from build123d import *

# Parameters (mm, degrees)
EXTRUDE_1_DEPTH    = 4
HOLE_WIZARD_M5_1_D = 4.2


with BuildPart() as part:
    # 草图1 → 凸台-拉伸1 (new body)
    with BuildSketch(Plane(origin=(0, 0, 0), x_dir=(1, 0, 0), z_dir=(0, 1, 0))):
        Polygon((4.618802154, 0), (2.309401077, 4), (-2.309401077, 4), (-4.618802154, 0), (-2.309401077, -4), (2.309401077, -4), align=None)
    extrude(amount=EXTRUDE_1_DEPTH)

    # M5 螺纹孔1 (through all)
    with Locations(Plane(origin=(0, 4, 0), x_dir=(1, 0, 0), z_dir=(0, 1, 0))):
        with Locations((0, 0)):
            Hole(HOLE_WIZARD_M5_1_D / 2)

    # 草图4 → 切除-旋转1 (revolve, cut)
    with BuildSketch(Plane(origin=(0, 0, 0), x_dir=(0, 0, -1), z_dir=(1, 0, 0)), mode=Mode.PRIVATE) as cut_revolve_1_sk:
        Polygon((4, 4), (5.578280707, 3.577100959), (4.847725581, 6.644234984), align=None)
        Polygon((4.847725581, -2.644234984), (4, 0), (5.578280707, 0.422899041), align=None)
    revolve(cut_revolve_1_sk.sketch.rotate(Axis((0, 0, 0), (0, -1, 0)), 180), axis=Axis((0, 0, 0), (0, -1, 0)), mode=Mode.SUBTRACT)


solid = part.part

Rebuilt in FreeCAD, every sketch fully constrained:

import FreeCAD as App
import Part
import Sketcher
from FreeCAD import Vector
Q = App.Units.Quantity

doc = App.newDocument("Part")
params = doc.addObject("Spreadsheet::Sheet", "Params")
for row, (alias, value) in enumerate([
    ("pad1_length", "4 mm"),
    ("sketch2_diameter", "4.2 mm"),
    ("hole_diameter", "4.2 mm"),
    ("groove_angle", "360 deg"),
], start=1):
    params.set(f"A{row}", alias)
    params.set(f"B{row}", "=" + value)
    params.setAlias(f"B{row}", alias)

body = doc.addObject("PartDesign::Body", "Body")

sketch1 = body.newObject("Sketcher::SketchObject", "Sketch")
sketch1.AttachmentSupport = (doc.getObject("XZ_Plane"), [""])
sketch1.MapMode = "FlatFace"
sketch1.addGeometry([
    Part.LineSegment(Vector(4.618802, 0, 0), Vector(2.309401, -4, 0)),
    Part.LineSegment(Vector(2.309401, -4, 0), Vector(-2.309401, -4, 0)),
    Part.LineSegment(Vector(-2.309401, -4, 0), Vector(-4.618802, 0, 0)),
    Part.LineSegment(Vector(-4.618802, 0, 0), Vector(-2.309401, 4, 0)),
    Part.LineSegment(Vector(-2.309401, 4, 0), Vector(2.309401, 4, 0)),
    Part.LineSegment(Vector(2.309401, 4, 0), Vector(4.618802, 0, 0)),
], False)
sketch1.addConstraint([
    Sketcher.Constraint("Coincident", 0, 2, 1, 1),
    Sketcher.Constraint("Coincident", 1, 2, 2, 1),
    Sketcher.Constraint("Coincident", 2, 2, 3, 1),
    Sketcher.Constraint("Coincident", 3, 2, 4, 1),
    Sketcher.Constraint("Coincident", 4, 2, 5, 1),
    Sketcher.Constraint("Coincident", 5, 2, 0, 1),
    Sketcher.Constraint("Horizontal", 1),
    Sketcher.Constraint("Horizontal", 4),
    Sketcher.Constraint("Symmetric", 0, 2, 3, 2, -1, 1),
    Sketcher.Constraint("Symmetric", 2, 2, 5, 2, -1, 1),
    Sketcher.Constraint("PointOnObject", 2, 2, -1),
    Sketcher.Constraint("Parallel", 2, 5),
    Sketcher.Constraint("Vertical", 1, 2, 3, 2),
    Sketcher.Constraint("Angle", 0, Q("-120 deg")),
    Sketcher.Constraint("DistanceY", 0, 2, -1, 1, Q("4 mm")),
    Sketcher.Constraint("DistanceX", -1, 1, 0, 2, Q("2.309401 mm")),
])
pad1 = body.newObject("PartDesign::Pad", "Pad")
pad1.Profile = sketch1
pad1.setExpression("Length", "Params.pad1_length")
pad1.Reversed = True

sketch2 = body.newObject("Sketcher::SketchObject", "Sketch001")
sketch2.AttachmentSupport = (doc.getObject("XZ_Plane"), [""])
sketch2.MapMode = "FlatFace"
sketch2.AttachmentOffset = App.Placement(Vector(0, 0, -4), App.Rotation())
sketch2.addGeometry(Part.Circle(Vector(0, 0, 0), Vector(0, 0, 1), 2.1), False)
sketch2.addConstraint([
    Sketcher.Constraint("Coincident", 0, 3, -1, 1),
    Sketcher.Constraint("Diameter", 0, Q("4.2 mm")),
])
sketch2.setExpression("Constraints[1]", "Params.sketch2_diameter")
doc.recompute()
hole = body.newObject("PartDesign::Hole", "Hole")
hole.Profile = sketch2
hole.ThreadType = "None"
hole.setExpression("Diameter", "Params.hole_diameter")
hole.DepthType = "ThroughAll"
hole.Reversed = True

sketch3 = body.newObject("Sketcher::SketchObject", "Sketch002")
sketch3.AttachmentSupport = (doc.getObject("YZ_Plane"), [""])
sketch3.MapMode = "FlatFace"
sketch3.addGeometry([
    Part.LineSegment(Vector(4, -4, 0), Vector(3.577101, -5.578281, 0)),
    Part.LineSegment(Vector(3.577101, -5.578281, 0), Vector(6.644235, -4.847726, 0)),
    Part.LineSegment(Vector(6.644235, -4.847726, 0), Vector(4, -4, 0)),
    Part.LineSegment(Vector(0, -4, 0), Vector(-2.644235, -4.847726, 0)),
    Part.LineSegment(Vector(-2.644235, -4.847726, 0), Vector(0.422899, -5.578281, 0)),
    Part.LineSegment(Vector(0.422899, -5.578281, 0), Vector(0, -4, 0)),
], False)
sketch3.addConstraint([
    Sketcher.Constraint("Coincident", 0, 2, 1, 1),
    Sketcher.Constraint("Coincident", 1, 2, 2, 1),
    Sketcher.Constraint("Coincident", 2, 2, 0, 1),
    Sketcher.Constraint("Coincident", 3, 2, 4, 1),
    Sketcher.Constraint("Coincident", 4, 2, 5, 1),
    Sketcher.Constraint("Coincident", 5, 2, 3, 1),
    Sketcher.Constraint("PointOnObject", 5, 2, -2),
    Sketcher.Constraint("Horizontal", 1, 2, 3, 2),
    Sketcher.Constraint("Horizontal", 0, 2, 4, 2),
    Sketcher.Constraint("Horizontal", 2, 2, 5, 2),
    Sketcher.Constraint("Equal", 2, 3),
    Sketcher.Constraint("Equal", 1, 4),
    Sketcher.Constraint("Angle", 0, Q("-105 deg")),
    Sketcher.Constraint("DistanceX", -1, 1, 2, 2, Q("4 mm")),
    Sketcher.Constraint("DistanceY", 2, 2, -1, 1, Q("4 mm")),
    Sketcher.Constraint("Distance", 2, Q("2.7768 mm")),
    Sketcher.Constraint("DistanceX", -1, 1, 0, 2, Q("3.577101 mm")),
    Sketcher.Constraint("Distance", 1, Q("3.152939 mm")),
])
groove = body.newObject("PartDesign::Groove", "Groove")
groove.Profile = sketch3
groove.ReferenceAxis = (sketch3, ["H_Axis"])
groove.setExpression("Angle", "Params.groove_angle")

doc.recompute()
